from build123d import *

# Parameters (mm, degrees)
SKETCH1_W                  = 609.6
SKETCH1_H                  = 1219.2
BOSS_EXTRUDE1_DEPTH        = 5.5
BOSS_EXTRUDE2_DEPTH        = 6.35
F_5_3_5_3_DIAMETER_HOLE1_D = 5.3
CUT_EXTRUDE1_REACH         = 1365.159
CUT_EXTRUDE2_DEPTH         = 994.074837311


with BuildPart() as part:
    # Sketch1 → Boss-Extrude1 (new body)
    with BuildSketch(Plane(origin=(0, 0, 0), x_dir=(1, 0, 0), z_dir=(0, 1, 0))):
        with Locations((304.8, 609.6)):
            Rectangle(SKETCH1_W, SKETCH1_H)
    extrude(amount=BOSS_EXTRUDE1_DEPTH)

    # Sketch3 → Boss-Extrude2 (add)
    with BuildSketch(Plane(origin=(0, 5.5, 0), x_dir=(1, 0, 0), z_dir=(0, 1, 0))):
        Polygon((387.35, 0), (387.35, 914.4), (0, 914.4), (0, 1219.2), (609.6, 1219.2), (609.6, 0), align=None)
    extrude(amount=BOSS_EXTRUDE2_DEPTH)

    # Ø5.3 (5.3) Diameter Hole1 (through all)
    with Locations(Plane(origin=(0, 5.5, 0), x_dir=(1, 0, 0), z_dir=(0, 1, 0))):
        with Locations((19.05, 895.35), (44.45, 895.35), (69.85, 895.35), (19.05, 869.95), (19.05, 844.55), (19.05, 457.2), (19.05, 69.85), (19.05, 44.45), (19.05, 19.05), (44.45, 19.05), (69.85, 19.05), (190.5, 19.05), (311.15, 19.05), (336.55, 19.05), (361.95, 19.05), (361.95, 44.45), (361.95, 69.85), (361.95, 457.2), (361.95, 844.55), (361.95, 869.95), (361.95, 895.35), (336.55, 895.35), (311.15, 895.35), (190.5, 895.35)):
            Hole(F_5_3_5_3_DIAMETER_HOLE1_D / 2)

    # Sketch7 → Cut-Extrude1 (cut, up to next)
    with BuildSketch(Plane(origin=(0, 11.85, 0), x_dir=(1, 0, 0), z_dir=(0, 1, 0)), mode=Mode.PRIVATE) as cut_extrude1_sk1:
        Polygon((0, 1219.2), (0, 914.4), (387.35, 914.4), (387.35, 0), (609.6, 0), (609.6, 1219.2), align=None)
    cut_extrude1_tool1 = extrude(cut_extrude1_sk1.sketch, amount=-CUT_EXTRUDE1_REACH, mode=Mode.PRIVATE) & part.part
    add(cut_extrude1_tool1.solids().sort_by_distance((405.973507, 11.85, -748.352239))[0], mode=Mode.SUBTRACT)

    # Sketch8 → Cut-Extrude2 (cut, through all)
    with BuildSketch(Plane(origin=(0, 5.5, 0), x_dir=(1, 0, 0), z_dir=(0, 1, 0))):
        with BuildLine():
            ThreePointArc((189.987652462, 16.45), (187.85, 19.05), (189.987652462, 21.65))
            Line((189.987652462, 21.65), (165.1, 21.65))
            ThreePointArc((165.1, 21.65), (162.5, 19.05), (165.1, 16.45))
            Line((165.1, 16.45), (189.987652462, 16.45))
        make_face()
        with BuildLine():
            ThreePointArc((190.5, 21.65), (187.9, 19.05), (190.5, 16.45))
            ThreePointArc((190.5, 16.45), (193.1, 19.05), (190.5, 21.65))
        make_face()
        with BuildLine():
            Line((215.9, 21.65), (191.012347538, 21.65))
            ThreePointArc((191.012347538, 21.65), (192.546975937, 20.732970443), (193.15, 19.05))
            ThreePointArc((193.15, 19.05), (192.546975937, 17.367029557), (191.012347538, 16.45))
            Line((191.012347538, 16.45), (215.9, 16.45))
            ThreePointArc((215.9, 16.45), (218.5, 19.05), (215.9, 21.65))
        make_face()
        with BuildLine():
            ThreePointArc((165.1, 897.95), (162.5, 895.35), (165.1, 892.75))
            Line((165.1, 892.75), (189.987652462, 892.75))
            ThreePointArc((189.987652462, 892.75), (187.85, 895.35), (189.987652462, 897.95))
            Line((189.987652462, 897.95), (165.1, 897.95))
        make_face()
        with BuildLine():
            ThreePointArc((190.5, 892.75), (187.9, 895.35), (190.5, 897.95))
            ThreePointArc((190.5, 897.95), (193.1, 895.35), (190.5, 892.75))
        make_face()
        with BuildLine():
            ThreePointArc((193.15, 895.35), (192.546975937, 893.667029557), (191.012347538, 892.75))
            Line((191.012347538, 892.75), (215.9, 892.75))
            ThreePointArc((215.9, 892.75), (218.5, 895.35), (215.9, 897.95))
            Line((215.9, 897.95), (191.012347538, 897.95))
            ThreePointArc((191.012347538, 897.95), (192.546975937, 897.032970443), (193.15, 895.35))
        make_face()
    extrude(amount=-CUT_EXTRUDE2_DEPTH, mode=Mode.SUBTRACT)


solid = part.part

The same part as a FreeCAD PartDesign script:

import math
import FreeCAD as App
import Part
import Sketcher
Q = App.Units.Quantity


def add_polygon(sketch, points):
    """Adds a closed chain of lines whose ends are joined by coincident constraints."""
    first, n = sketch.GeometryCount, len(points)
    for a, b in zip(points, points[1:] + points[:1]):
        sketch.addGeometry(Part.LineSegment(App.Vector(*a, 0), App.Vector(*b, 0)), False)
    for i in range(n):
        sketch.addConstraint(Sketcher.Constraint("Coincident", first + i, 2, first + (i + 1) % n, 1))

doc = App.newDocument("Part")
body = doc.addObject("PartDesign::Body", "Body")

# Sketch on XZ plane
sketch1 = body.newObject("Sketcher::SketchObject", "Sketch")
sketch1.AttachmentSupport = (doc.getObject("XZ_Plane"), [""])
sketch1.MapMode = "FlatFace"
add_polygon(sketch1, [(0, -1219), (0, 0), (610, 0), (610, -1219)])  # lines 0-3
sketch1.addConstraint(Sketcher.Constraint("Vertical", 0))
sketch1.addConstraint(Sketcher.Constraint("Horizontal", 1))
sketch1.addConstraint(Sketcher.Constraint("Vertical", 2))
sketch1.addConstraint(Sketcher.Constraint("Horizontal", 3))
sketch1.addConstraint(Sketcher.Constraint("Coincident", 0, 2, -1, 1))
sketch1.addConstraint(Sketcher.Constraint("DistanceX", 1, 1, 1, 2, Q("24 in")))
sketch1.addConstraint(Sketcher.Constraint("DistanceY", 0, 1, 0, 2, Q("48 in")))
pad1 = body.newObject("PartDesign::Pad", "Pad")
pad1.Profile = sketch1
pad1.Length = 5.5
pad1.Reversed = True

# Sketch on XZ plane
sketch2 = body.newObject("Sketcher::SketchObject", "Sketch001")
sketch2.AttachmentSupport = (doc.getObject("XZ_Plane"), [""])
sketch2.MapMode = "FlatFace"
sketch2.AttachmentOffset = App.Placement(App.Vector(0, 0, -5.5), App.Rotation())
add_polygon(sketch2, [(387, -914), (387, 0), (610, 0), (610, -1219), (0, -1219), (0, -914)])  # lines 0-5
sketch2.addConstraint(Sketcher.Constraint("Vertical", 0))
sketch2.addConstraint(Sketcher.Constraint("Horizontal", 1))
sketch2.addConstraint(Sketcher.Constraint("Vertical", 2))
sketch2.addConstraint(Sketcher.Constraint("Horizontal", 3))
sketch2.addConstraint(Sketcher.Constraint("Vertical", 4))
sketch2.addConstraint(Sketcher.Constraint("Horizontal", 5))
sketch2.addConstraint(Sketcher.Constraint("PointOnObject", 0, 2, -1))
sketch2.addConstraint(Sketcher.Constraint("PointOnObject", 3, 2, -2))
sketch2.addConstraint(Sketcher.Constraint("DistanceX", 3, 2, 3, 1, Q("24 in")))
sketch2.addConstraint(Sketcher.Constraint("DistanceY", 0, 1, 0, 2, Q("36 in")))
sketch2.addConstraint(Sketcher.Constraint("DistanceY", 2, 2, 2, 1, Q("48 in")))
sketch2.addConstraint(Sketcher.Constraint("DistanceX", 1, 1, 1, 2, Q("8.75 in")))
pad2 = body.newObject("PartDesign::Pad", "Pad001")
pad2.Profile = sketch2
pad2.Length = Q("0.25 in")
pad2.Reversed = True

# Sketch on XZ plane
sketch3 = body.newObject("Sketcher::SketchObject", "Sketch002")
sketch3.AttachmentSupport = (doc.getObject("XZ_Plane"), [""])
sketch3.MapMode = "FlatFace"
sketch3.AttachmentOffset = App.Placement(App.Vector(0, 0, -5.5), App.Rotation())
sketch3.addGeometry(Part.Circle(App.Vector(19.1, -895.4, 0), App.Vector(0, 0, 1), 2.6), False)
sketch3.addGeometry(Part.Circle(App.Vector(44.5, -895.4, 0), App.Vector(0, 0, 1), 2.6), False)
sketch3.addGeometry(Part.Circle(App.Vector(69.8, -895.4, 0), App.Vector(0, 0, 1), 2.6), False)
sketch3.addGeometry(Part.Circle(App.Vector(19.1, -870, 0), App.Vector(0, 0, 1), 2.6), False)
sketch3.addGeometry(Part.Circle(App.Vector(19.1, -844.5, 0), App.Vector(0, 0, 1), 2.6), False)
sketch3.addGeometry(Part.Circle(App.Vector(19.1, -457.2, 0), App.Vector(0, 0, 1), 2.6), False)
sketch3.addGeometry(Part.Circle(App.Vector(19.1, -69.8, 0), App.Vector(0, 0, 1), 2.6), False)
sketch3.addGeometry(Part.Circle(App.Vector(19.1, -44.5, 0), App.Vector(0, 0, 1), 2.6), False)
sketch3.addGeometry(Part.Circle(App.Vector(19.1, -19.1, 0), App.Vector(0, 0, 1), 2.6), False)
sketch3.addGeometry(Part.Circle(App.Vector(44.5, -19.1, 0), App.Vector(0, 0, 1), 2.6), False)
sketch3.addGeometry(Part.Circle(App.Vector(69.8, -19.1, 0), App.Vector(0, 0, 1), 2.6), False)
sketch3.addGeometry(Part.Circle(App.Vector(190.5, -19.1, 0), App.Vector(0, 0, 1), 2.6), False)
sketch3.addGeometry(Part.Circle(App.Vector(311.1, -19.1, 0), App.Vector(0, 0, 1), 2.6), False)
sketch3.addGeometry(Part.Circle(App.Vector(336.6, -19.1, 0), App.Vector(0, 0, 1), 2.6), False)
sketch3.addGeometry(Part.Circle(App.Vector(361.9, -19.1, 0), App.Vector(0, 0, 1), 2.6), False)
sketch3.addGeometry(Part.Circle(App.Vector(361.9, -44.5, 0), App.Vector(0, 0, 1), 2.6), False)
sketch3.addGeometry(Part.Circle(App.Vector(361.9, -69.8, 0), App.Vector(0, 0, 1), 2.6), False)
sketch3.addGeometry(Part.Circle(App.Vector(361.9, -457.2, 0), App.Vector(0, 0, 1), 2.6), False)
sketch3.addGeometry(Part.Circle(App.Vector(361.9, -844.5, 0), App.Vector(0, 0, 1), 2.6), False)
sketch3.addGeometry(Part.Circle(App.Vector(361.9, -870, 0), App.Vector(0, 0, 1), 2.6), False)
sketch3.addGeometry(Part.Circle(App.Vector(361.9, -895.4, 0), App.Vector(0, 0, 1), 2.6), False)
sketch3.addGeometry(Part.Circle(App.Vector(336.6, -895.4, 0), App.Vector(0, 0, 1), 2.6), False)
sketch3.addGeometry(Part.Circle(App.Vector(311.1, -895.4, 0), App.Vector(0, 0, 1), 2.6), False)
sketch3.addGeometry(Part.Circle(App.Vector(190.5, -895.4, 0), App.Vector(0, 0, 1), 2.6), False)
sketch3.addConstraint(Sketcher.Constraint("Equal", 0, 1))
sketch3.addConstraint(Sketcher.Constraint("Equal", 1, 2))
sketch3.addConstraint(Sketcher.Constraint("Equal", 2, 3))
sketch3.addConstraint(Sketcher.Constraint("Equal", 3, 4))
sketch3.addConstraint(Sketcher.Constraint("Equal", 4, 5))
sketch3.addConstraint(Sketcher.Constraint("Equal", 5, 6))
sketch3.addConstraint(Sketcher.Constraint("Equal", 6, 7))
sketch3.addConstraint(Sketcher.Constraint("Equal", 7, 8))
sketch3.addConstraint(Sketcher.Constraint("Equal", 8, 9))
sketch3.addConstraint(Sketcher.Constraint("Equal", 9, 10))
sketch3.addConstraint(Sketcher.Constraint("Equal", 10, 11))
sketch3.addConstraint(Sketcher.Constraint("Equal", 11, 12))
sketch3.addConstraint(Sketcher.Constraint("Equal", 12, 13))
sketch3.addConstraint(Sketcher.Constraint("Equal", 13, 14))
sketch3.addConstraint(Sketcher.Constraint("Equal", 14, 15))
sketch3.addConstraint(Sketcher.Constraint("Equal", 15, 16))
sketch3.addConstraint(Sketcher.Constraint("Equal", 16, 17))
sketch3.addConstraint(Sketcher.Constraint("Equal", 17, 18))
sketch3.addConstraint(Sketcher.Constraint("Equal", 18, 19))
sketch3.addConstraint(Sketcher.Constraint("Equal", 19, 20))
sketch3.addConstraint(Sketcher.Constraint("Equal", 20, 21))
sketch3.addConstraint(Sketcher.Constraint("Equal", 21, 22))
sketch3.addConstraint(Sketcher.Constraint("Equal", 22, 23))
sketch3.addConstraint(Sketcher.Constraint("Horizontal", 0, 3, 1, 3))
sketch3.addConstraint(Sketcher.Constraint("Horizontal", 1, 3, 2, 3))
sketch3.addConstraint(Sketcher.Constraint("Horizontal", 8, 3, 9, 3))
sketch3.addConstraint(Sketcher.Constraint("Horizontal", 9, 3, 10, 3))
sketch3.addConstraint(Sketcher.Constraint("Horizontal", 10, 3, 11, 3))
sketch3.addConstraint(Sketcher.Constraint("Horizontal", 11, 3, 12, 3))
sketch3.addConstraint(Sketcher.Constraint("Horizontal", 12, 3, 13, 3))
sketch3.addConstraint(Sketcher.Constraint("Horizontal", 13, 3, 14, 3))
sketch3.addConstraint(Sketcher.Constraint("Horizontal", 7, 3, 15, 3))
sketch3.addConstraint(Sketcher.Constraint("Horizontal", 6, 3, 16, 3))
sketch3.addConstraint(Sketcher.Constraint("Horizontal", 5, 3, 17, 3))
sketch3.addConstraint(Sketcher.Constraint("Horizontal", 4, 3, 18, 3))
sketch3.addConstraint(Sketcher.Constraint("Horizontal", 3, 3, 19, 3))
sketch3.addConstraint(Sketcher.Constraint("Horizontal", 2, 3, 20, 3))
sketch3.addConstraint(Sketcher.Constraint("Horizontal", 20, 3, 21, 3))
sketch3.addConstraint(Sketcher.Constraint("Horizontal", 21, 3, 22, 3))
sketch3.addConstraint(Sketcher.Constraint("Horizontal", 22, 3, 23, 3))
sketch3.addConstraint(Sketcher.Constraint("Vertical", 0, 3, 3, 3))
sketch3.addConstraint(Sketcher.Constraint("Vertical", 3, 3, 4, 3))
sketch3.addConstraint(Sketcher.Constraint("Vertical", 4, 3, 5, 3))
sketch3.addConstraint(Sketcher.Constraint("Vertical", 5, 3, 6, 3))
sketch3.addConstraint(Sketcher.Constraint("Vertical", 6, 3, 7, 3))
sketch3.addConstraint(Sketcher.Constraint("Vertical", 7, 3, 8, 3))
sketch3.addConstraint(Sketcher.Constraint("Vertical", 1, 3, 9, 3))
sketch3.addConstraint(Sketcher.Constraint("Vertical", 2, 3, 10, 3))
sketch3.addConstraint(Sketcher.Constraint("Vertical", 14, 3, 15, 3))
sketch3.addConstraint(Sketcher.Constraint("Vertical", 15, 3, 16, 3))
sketch3.addConstraint(Sketcher.Constraint("Vertical", 16, 3, 17, 3))
sketch3.addConstraint(Sketcher.Constraint("Vertical", 17, 3, 18, 3))
sketch3.addConstraint(Sketcher.Constraint("Vertical", 18, 3, 19, 3))
sketch3.addConstraint(Sketcher.Constraint("Vertical", 19, 3, 20, 3))
sketch3.addConstraint(Sketcher.Constraint("Vertical", 13, 3, 21, 3))
sketch3.addConstraint(Sketcher.Constraint("Vertical", 12, 3, 22, 3))
sketch3.addConstraint(Sketcher.Constraint("Vertical", 11, 3, 23, 3))
sketch3.addConstraint(Sketcher.Constraint("DistanceY", 5, 3, -1, 1, Q("18 in")))
sketch3.addConstraint(Sketcher.Constraint("DistanceX", 0, 3, 1, 3, Q("1 in")))
sketch3.addConstraint(Sketcher.Constraint("DistanceX", 1, 3, 2, 3, Q("1 in")))
sketch3.addConstraint(Sketcher.Constraint("DistanceY", 0, 3, 3, 3, Q("1 in")))
sketch3.addConstraint(Sketcher.Constraint("DistanceY", 3, 3, 4, 3, Q("1 in")))
sketch3.addConstraint(Sketcher.Constraint("DistanceY", 6, 3, 7, 3, Q("1 in")))
sketch3.addConstraint(Sketcher.Constraint("DistanceY", 7, 3, 8, 3, Q("1 in")))
sketch3.addConstraint(Sketcher.Constraint("DistanceX", 12, 3, 13, 3, Q("1 in")))
sketch3.addConstraint(Sketcher.Constraint("DistanceX", 13, 3, 14, 3, Q("1 in")))
sketch3.addConstraint(Sketcher.Constraint("DistanceX", -1, 1, 11, 3, Q("7.5 in")))
sketch3.addConstraint(Sketcher.Constraint("DistanceY", 4, 3, 6, 3, Q("30.5 in")))
sketch3.addConstraint(Sketcher.Constraint("DistanceX", 10, 3, 12, 3, Q("9.5 in")))
sketch3.addConstraint(Sketcher.Constraint("Diameter", 0, Q("5.3 mm")))
sketch3.addConstraint(Sketcher.Constraint("DistanceX", -1, 1, 0, 3, Q("0.75 in")))
sketch3.addConstraint(Sketcher.Constraint("DistanceY", 0, 3, -1, 1, Q("35.25 in")))
doc.recompute()
hole = body.newObject("PartDesign::Hole", "Hole")
hole.Profile = sketch3
hole.ThreadType = "None"
hole.Diameter = 5.3
hole.DepthType = "ThroughAll"
hole.Reversed = True

# Sketch on XZ plane
sketch4 = body.newObject("Sketcher::SketchObject", "Sketch003")
sketch4.AttachmentSupport = (doc.getObject("XZ_Plane"), [""])
sketch4.MapMode = "FlatFace"
sketch4.AttachmentOffset = App.Placement(App.Vector(0, 0, -11.85), App.Rotation())
add_polygon(sketch4, [(0, -1219), (0, -914), (387, -914), (387, 0), (610, 0), (610, -1219)])  # lines 0-5
sketch4.addConstraint(Sketcher.Constraint("Vertical", 0))
sketch4.addConstraint(Sketcher.Constraint("Horizontal", 1))
sketch4.addConstraint(Sketcher.Constraint("Vertical", 2))
sketch4.addConstraint(Sketcher.Constraint("Horizontal", 3))
sketch4.addConstraint(Sketcher.Constraint("Vertical", 4))
sketch4.addConstraint(Sketcher.Constraint("Horizontal", 5))
sketch4.addConstraint(Sketcher.Constraint("PointOnObject", 0, 2, -2))
sketch4.addConstraint(Sketcher.Constraint("PointOnObject", 2, 2, -1))
sketch4.addConstraint(Sketcher.Constraint("DistanceX", 5, 2, 5, 1, Q("24 in")))
sketch4.addConstraint(Sketcher.Constraint("DistanceY", 0, 1, 0, 2, Q("12 in")))
sketch4.addConstraint(Sketcher.Constraint("DistanceY", 2, 1, 2, 2, Q("36 in")))
sketch4.addConstraint(Sketcher.Constraint("DistanceX", 1, 1, 1, 2, Q("15.25 in")))
pocket1 = body.newObject("PartDesign::Pocket", "Pocket")
pocket1.Profile = sketch4
pocket1.Type = "UpToFirst"
pocket1.Reversed = True

# Sketch on XZ plane
sketch5 = body.newObject("Sketcher::SketchObject", "Sketch004")
sketch5.AttachmentSupport = (doc.getObject("XZ_Plane"), [""])
sketch5.MapMode = "FlatFace"
sketch5.AttachmentOffset = App.Placement(App.Vector(0, 0, -5.5), App.Rotation())
sketch5.addGeometry(Part.ArcOfCircle(Part.Circle(App.Vector(190.5, -19.1, 0), App.Vector(0, 0, 1), 2.6), math.radians(101), math.radians(259)), False)
sketch5.addGeometry(Part.LineSegment(App.Vector(190, -21.6, 0), App.Vector(165.1, -21.6, 0)), False)
sketch5.addGeometry(Part.ArcOfCircle(Part.Circle(App.Vector(165.1, -19.1, 0), App.Vector(0, 0, 1), 2.6), math.radians(90), math.radians(270)), False)
sketch5.addGeometry(Part.LineSegment(App.Vector(165.1, -16.4, 0), App.Vector(190, -16.4, 0)), False)
sketch5.addGeometry(Part.Circle(App.Vector(190.5, -19.1, 0), App.Vector(0, 0, 1), 2.6), False)
sketch5.addGeometry(Part.LineSegment(App.Vector(215.9, -21.6, 0), App.Vector(191, -21.6, 0)), False)
sketch5.addGeometry(Part.ArcOfCircle(Part.Circle(App.Vector(190.5, -19, 0), App.Vector(0, 0, 1), 2.7), math.radians(-79), math.radians(0)), False)
sketch5.addGeometry(Part.ArcOfCircle(Part.Circle(App.Vector(190.5, -19.1, 0), App.Vector(0, 0, 1), 2.7), math.radians(0), math.radians(79)), False)
sketch5.addGeometry(Part.LineSegment(App.Vector(191, -16.4, 0), App.Vector(215.9, -16.4, 0)), False)
sketch5.addGeometry(Part.ArcOfCircle(Part.Circle(App.Vector(215.9, -19.1, 0), App.Vector(0, 0, 1), 2.6), math.radians(-90), math.radians(90)), False)
sketch5.addGeometry(Part.ArcOfCircle(Part.Circle(App.Vector(165.1, -895.4, 0), App.Vector(0, 0, 1), 2.6), math.radians(90), math.radians(270)), False)
sketch5.addGeometry(Part.LineSegment(App.Vector(165.1, -892.8, 0), App.Vector(190, -892.8, 0)), False)
sketch5.addGeometry(Part.ArcOfCircle(Part.Circle(App.Vector(190.5, -895.4, 0), App.Vector(0, 0, 1), 2.6), math.radians(101), math.radians(259)), False)
sketch5.addGeometry(Part.LineSegment(App.Vector(190, -898, 0), App.Vector(165.1, -898, 0)), False)
sketch5.addGeometry(Part.Circle(App.Vector(190.5, -895.4, 0), App.Vector(0, 0, 1), 2.6), False)
sketch5.addGeometry(Part.ArcOfCircle(Part.Circle(App.Vector(190.5, -895.4, 0), App.Vector(0, 0, 1), 2.7), math.radians(0), math.radians(79)), False)
sketch5.addGeometry(Part.LineSegment(App.Vector(191, -892.8, 0), App.Vector(215.9, -892.8, 0)), False)
sketch5.addGeometry(Part.ArcOfCircle(Part.Circle(App.Vector(215.9, -895.4, 0), App.Vector(0, 0, 1), 2.6), math.radians(-90), math.radians(90)), False)
sketch5.addGeometry(Part.LineSegment(App.Vector(215.9, -898, 0), App.Vector(191, -898, 0)), False)
sketch5.addGeometry(Part.ArcOfCircle(Part.Circle(App.Vector(190.5, -895.3, 0), App.Vector(0, 0, 1), 2.7), math.radians(-79), math.radians(0)), False)
sketch5.addConstraint(Sketcher.Constraint("Coincident", 0, 2, 1, 1))
sketch5.addConstraint(Sketcher.Constraint("Tangent", 1, 2, 2, 2))
sketch5.addConstraint(Sketcher.Constraint("Tangent", 2, 1, 3, 1))
sketch5.addConstraint(Sketcher.Constraint("Coincident", 3, 2, 0, 1))
sketch5.addConstraint(Sketcher.Constraint("Coincident", 5, 2, 6, 1))
sketch5.addConstraint(Sketcher.Constraint("Tangent", 6, 2, 7, 1))
sketch5.addConstraint(Sketcher.Constraint("Coincident", 7, 2, 8, 1))
sketch5.addConstraint(Sketcher.Constraint("Tangent", 8, 2, 9, 2))
sketch5.addConstraint(Sketcher.Constraint("Tangent", 9, 1, 5, 1))
sketch5.addConstraint(Sketcher.Constraint("Tangent", 10, 1, 11, 1))
sketch5.addConstraint(Sketcher.Constraint("Coincident", 11, 2, 12, 1))
sketch5.addConstraint(Sketcher.Constraint("Coincident", 12, 2, 13, 1))
sketch5.addConstraint(Sketcher.Constraint("Tangent", 13, 2, 10, 2))
sketch5.addConstraint(Sketcher.Constraint("Coincident", 15, 2, 16, 1))
sketch5.addConstraint(Sketcher.Constraint("Tangent", 16, 2, 17, 2))
sketch5.addConstraint(Sketcher.Constraint("Tangent", 17, 1, 18, 1))
sketch5.addConstraint(Sketcher.Constraint("Coincident", 18, 2, 19, 1))
sketch5.addConstraint(Sketcher.Constraint("Tangent", 19, 2, 15, 1))
sketch5.addConstraint(Sketcher.Constraint("Horizontal", 1))
sketch5.addConstraint(Sketcher.Constraint("Horizontal", 3))
sketch5.addConstraint(Sketcher.Constraint("Horizontal", 5))
sketch5.addConstraint(Sketcher.Constraint("Horizontal", 8))
sketch5.addConstraint(Sketcher.Constraint("Horizontal", 11))
sketch5.addConstraint(Sketcher.Constraint("Horizontal", 13))
sketch5.addConstraint(Sketcher.Constraint("Horizontal", 16))
sketch5.addConstraint(Sketcher.Constraint("Horizontal", 18))
sketch5.addConstraint(Sketcher.Constraint("Coincident", 4, 3, 0, 3))
sketch5.addConstraint(Sketcher.Constraint("Coincident", 6, 3, 0, 3))
sketch5.addConstraint(Sketcher.Constraint("Coincident", 14, 3, 12, 3))
sketch5.addConstraint(Sketcher.Constraint("Coincident", 15, 3, 12, 3))
sketch5.addConstraint(Sketcher.Constraint("Equal", 2, 4))
sketch5.addConstraint(Sketcher.Constraint("Equal", 0, 6))
sketch5.addConstraint(Sketcher.Constraint("Equal", 6, 7))
sketch5.addConstraint(Sketcher.Constraint("Equal", 4, 9))
sketch5.addConstraint(Sketcher.Constraint("Equal", 9, 10))
sketch5.addConstraint(Sketcher.Constraint("Equal", 7, 12))
sketch5.addConstraint(Sketcher.Constraint("Equal", 10, 14))
sketch5.addConstraint(Sketcher.Constraint("Equal", 12, 15))
sketch5.addConstraint(Sketcher.Constraint("Equal", 14, 17))
sketch5.addConstraint(Sketcher.Constraint("Equal", 15, 19))
sketch5.addConstraint(Sketcher.Constraint("Horizontal", 0, 3, 2, 3))
sketch5.addConstraint(Sketcher.Constraint("Horizontal", 7, 3, 9, 3))
sketch5.addConstraint(Sketcher.Constraint("Horizontal", 10, 3, 12, 3))
sketch5.addConstraint(Sketcher.Constraint("Horizontal", 15, 3, 17, 3))
sketch5.addConstraint(Sketcher.Constraint("Horizontal", 9, 3, 6, 2))
sketch5.addConstraint(Sketcher.Constraint("Horizontal", 17, 3, 19, 2))
sketch5.addConstraint(Sketcher.Constraint("Vertical", 2, 3, 10, 3))
sketch5.addConstraint(Sketcher.Constraint("Vertical", 7, 3, 12, 3))
sketch5.addConstraint(Sketcher.Constraint("Vertical", 9, 3, 17, 3))
sketch5.addConstraint(Sketcher.Constraint("Equal", 3, 5))
sketch5.addConstraint(Sketcher.Constraint("DistanceX", 2, 3, 0, 3, Q("1 in")))
sketch5.addConstraint(Sketcher.Constraint("DistanceX", -1, 1, 0, 3, Q("7.5 in")))
sketch5.addConstraint(Sketcher.Constraint("DistanceY", 10, 3, 2, 3, Q("34.5 in")))
sketch5.addConstraint(Sketcher.Constraint("Diameter", 4, Q("5.2 mm")))
sketch5.addConstraint(Sketcher.Constraint("DistanceY", 0, 3, -1, 1, Q("0.75 in")))
sketch5.addConstraint(Sketcher.Constraint("Radius", 0, Q("2.65 mm")))
pocket2 = body.newObject("PartDesign::Pocket", "Pocket001")
pocket2.Profile = sketch5
pocket2.Type = "ThroughAll"
pocket2.Reversed = True

doc.recompute()
